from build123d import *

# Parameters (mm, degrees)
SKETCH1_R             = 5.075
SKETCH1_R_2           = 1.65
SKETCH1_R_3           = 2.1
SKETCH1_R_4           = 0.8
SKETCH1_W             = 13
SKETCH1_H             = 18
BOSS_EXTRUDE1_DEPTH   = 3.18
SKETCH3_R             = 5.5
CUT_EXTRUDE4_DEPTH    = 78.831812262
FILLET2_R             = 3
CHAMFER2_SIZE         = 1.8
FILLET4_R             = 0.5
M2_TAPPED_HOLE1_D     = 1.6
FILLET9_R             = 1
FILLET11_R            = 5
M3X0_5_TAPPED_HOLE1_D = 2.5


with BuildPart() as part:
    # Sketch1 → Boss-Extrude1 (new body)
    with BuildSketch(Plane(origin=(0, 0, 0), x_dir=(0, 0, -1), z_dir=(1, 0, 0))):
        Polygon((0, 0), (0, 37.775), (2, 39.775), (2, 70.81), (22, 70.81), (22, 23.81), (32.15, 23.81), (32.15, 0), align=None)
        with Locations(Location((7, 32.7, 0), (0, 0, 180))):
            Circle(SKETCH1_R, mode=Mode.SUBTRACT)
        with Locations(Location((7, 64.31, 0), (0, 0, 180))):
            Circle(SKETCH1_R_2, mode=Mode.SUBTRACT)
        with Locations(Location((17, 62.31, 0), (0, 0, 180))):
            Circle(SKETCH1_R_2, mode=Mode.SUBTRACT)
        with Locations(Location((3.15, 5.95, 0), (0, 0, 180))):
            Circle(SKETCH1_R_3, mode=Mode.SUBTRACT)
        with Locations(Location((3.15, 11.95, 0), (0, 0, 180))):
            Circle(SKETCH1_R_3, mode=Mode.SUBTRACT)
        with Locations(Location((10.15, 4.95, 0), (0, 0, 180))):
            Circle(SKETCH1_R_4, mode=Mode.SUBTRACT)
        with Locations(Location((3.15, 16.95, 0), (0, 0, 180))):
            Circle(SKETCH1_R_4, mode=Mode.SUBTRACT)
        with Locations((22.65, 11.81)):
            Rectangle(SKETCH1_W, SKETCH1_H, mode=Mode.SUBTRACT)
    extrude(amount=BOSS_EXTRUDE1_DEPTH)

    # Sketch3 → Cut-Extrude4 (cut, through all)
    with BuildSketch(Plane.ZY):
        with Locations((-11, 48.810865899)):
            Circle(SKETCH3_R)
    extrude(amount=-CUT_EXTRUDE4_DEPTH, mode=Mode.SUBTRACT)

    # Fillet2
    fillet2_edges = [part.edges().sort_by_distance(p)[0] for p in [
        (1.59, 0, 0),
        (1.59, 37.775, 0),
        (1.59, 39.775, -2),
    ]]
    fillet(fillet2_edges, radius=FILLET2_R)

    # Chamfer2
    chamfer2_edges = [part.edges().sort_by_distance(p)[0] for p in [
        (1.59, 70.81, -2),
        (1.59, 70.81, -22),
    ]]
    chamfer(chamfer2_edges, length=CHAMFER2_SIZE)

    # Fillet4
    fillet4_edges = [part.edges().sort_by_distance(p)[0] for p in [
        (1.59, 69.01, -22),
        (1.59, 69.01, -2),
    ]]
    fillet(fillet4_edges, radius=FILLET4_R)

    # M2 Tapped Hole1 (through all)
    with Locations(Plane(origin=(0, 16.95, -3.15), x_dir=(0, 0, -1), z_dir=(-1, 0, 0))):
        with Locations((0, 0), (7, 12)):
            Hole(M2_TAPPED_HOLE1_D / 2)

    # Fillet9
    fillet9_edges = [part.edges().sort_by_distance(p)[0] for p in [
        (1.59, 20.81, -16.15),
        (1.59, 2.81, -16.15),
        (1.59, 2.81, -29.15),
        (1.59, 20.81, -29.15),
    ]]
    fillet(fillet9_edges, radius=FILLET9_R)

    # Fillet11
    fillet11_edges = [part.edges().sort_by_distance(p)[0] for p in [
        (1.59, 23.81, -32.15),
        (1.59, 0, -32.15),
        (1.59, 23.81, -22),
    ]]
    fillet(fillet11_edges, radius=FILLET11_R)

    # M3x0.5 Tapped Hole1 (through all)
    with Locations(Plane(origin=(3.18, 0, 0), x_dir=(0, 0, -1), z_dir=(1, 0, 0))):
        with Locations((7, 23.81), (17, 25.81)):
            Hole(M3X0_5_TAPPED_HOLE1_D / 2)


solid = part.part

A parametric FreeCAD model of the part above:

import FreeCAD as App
import Part
import Sketcher
Q = App.Units.Quantity


def edges_at(feature, points):
    """Names of the edges that pass closest to the given points."""
    edges = feature.Shape.Edges
    near = lambda p: min(range(len(edges)), key=lambda i: edges[i].distToShape(Part.Vertex(*p))[0])
    return sorted({f"Edge{near(p) + 1}" for p in points})

doc = App.newDocument("Part")
params = doc.addObject("Spreadsheet::Sheet", "Params")
for row, (alias, value) in enumerate([
    ("sketch1_diameter", "1.6 mm"),
    ("sketch1_diameter2", "4.2 mm"),
    ("sketch1_diameter3", "3.3 mm"),
    ("sketch1_diameter4", "10.15 mm"),
    ("sketch1_width", "47 mm"),
    ("pad1_length", "3.18 mm"),
    ("sketch2_diameter", "11 mm"),
    ("fillet_radius", "3 mm"),
    ("chamfer_size", "1.8 mm"),
    ("fillet2_radius", "0.5 mm"),
    ("sketch3_diameter", "1.6 mm"),
    ("hole_diameter", "1.6 mm"),
    ("fillet3_radius", "1 mm"),
    ("fillet4_radius", "5 mm"),
    ("sketch4_diameter", "2.5 mm"),
    ("hole2_diameter", "2.5 mm"),
], start=1):
    params.set(f"A{row}", alias)
    params.set(f"B{row}", "=" + value)
    params.setAlias(f"B{row}", alias)

body = doc.addObject("PartDesign::Body", "Body")

# Sketch on YZ plane
sketch1 = body.newObject("Sketcher::SketchObject", "Sketch")
sketch1.AttachmentSupport = (doc.getObject("YZ_Plane"), [""])
sketch1.MapMode = "FlatFace"
sketch1.addGeometry([
    Part.LineSegment(App.Vector(37.8, 0, 0), App.Vector(0, 0, 0)),  # 0
    Part.LineSegment(App.Vector(0, 0, 0), App.Vector(0, -32.1, 0)),  # 1
    Part.LineSegment(App.Vector(0, -32.1, 0), App.Vector(23.8, -32.1, 0)),  # 2
    Part.LineSegment(App.Vector(23.8, -32.1, 0), App.Vector(23.8, -22, 0)),  # 3
    Part.LineSegment(App.Vector(23.8, -22, 0), App.Vector(70.8, -22, 0)),  # 4
    Part.LineSegment(App.Vector(70.8, -22, 0), App.Vector(70.8, -2, 0)),  # 5
    Part.LineSegment(App.Vector(70.8, -2, 0), App.Vector(39.8, -2, 0)),  # 6
    Part.LineSegment(App.Vector(39.8, -2, 0), App.Vector(37.8, 0, 0)),  # 7
    Part.LineSegment(App.Vector(2.8, -16.1, 0), App.Vector(20.8, -16.1, 0)),  # 8
    Part.LineSegment(App.Vector(20.8, -16.1, 0), App.Vector(20.8, -29.1, 0)),  # 9
    Part.LineSegment(App.Vector(20.8, -29.1, 0), App.Vector(2.8, -29.1, 0)),  # 10
    Part.LineSegment(App.Vector(2.8, -29.1, 0), App.Vector(2.8, -16.1, 0)),  # 11
    Part.Circle(App.Vector(5, -10.2, 0), App.Vector(0, 0, 1), 0.8),  # 12
    Part.Circle(App.Vector(6, -3.1, 0), App.Vector(0, 0, 1), 2.1),  # 13
    Part.Circle(App.Vector(11.9, -3.1, 0), App.Vector(0, 0, 1), 2.1),  # 14
    Part.Circle(App.Vector(16.9, -3.1, 0), App.Vector(0, 0, 1), 0.8),  # 15
    Part.Circle(App.Vector(32.7, -7, 0), App.Vector(0, 0, 1), 5.1),  # 16
    Part.Circle(App.Vector(62.3, -17, 0), App.Vector(0, 0, 1), 1.6),  # 17
    Part.Circle(App.Vector(64.3, -7, 0), App.Vector(0, 0, 1), 1.6),  # 18
], False)
sketch1.addConstraint([
    Sketcher.Constraint("Coincident", 0, 2, 1, 1),
    Sketcher.Constraint("Coincident", 1, 2, 2, 1),
    Sketcher.Constraint("Coincident", 2, 2, 3, 1),
    Sketcher.Constraint("Coincident", 3, 2, 4, 1),
    Sketcher.Constraint("Coincident", 4, 2, 5, 1),
    Sketcher.Constraint("Coincident", 5, 2, 6, 1),
    Sketcher.Constraint("Coincident", 6, 2, 7, 1),
    Sketcher.Constraint("Coincident", 7, 2, 0, 1),
    Sketcher.Constraint("Coincident", 8, 2, 9, 1),
    Sketcher.Constraint("Coincident", 9, 2, 10, 1),
    Sketcher.Constraint("Coincident", 10, 2, 11, 1),
    Sketcher.Constraint("Coincident", 11, 2, 8, 1),
    Sketcher.Constraint("Horizontal", 0),
    Sketcher.Constraint("Vertical", 1),
    Sketcher.Constraint("Horizontal", 2),
    Sketcher.Constraint("Vertical", 3),
    Sketcher.Constraint("Horizontal", 4),
    Sketcher.Constraint("Vertical", 5),
    Sketcher.Constraint("Horizontal", 6),
    Sketcher.Constraint("Horizontal", 8),
    Sketcher.Constraint("Vertical", 9),
    Sketcher.Constraint("Horizontal", 10),
    Sketcher.Constraint("Vertical", 11),
    Sketcher.Constraint("Coincident", 0, 2, -1, 1),
    Sketcher.Constraint("Equal", 13, 14),
    Sketcher.Constraint("Equal", 12, 15),
    Sketcher.Constraint("Equal", 17, 18),
    Sketcher.Constraint("Horizontal", 13, 3, 14, 3),
    Sketcher.Constraint("Horizontal", 14, 3, 15, 3),
    Sketcher.Constraint("Horizontal", 16, 3, 18, 3),
    Sketcher.Constraint("Diameter", 12, 1.6),
    Sketcher.Constraint("Diameter", 13, 4.2),
    Sketcher.Constraint("Diameter", 17, 3.3),
    Sketcher.Constraint("Diameter", 16, 10.15),
    Sketcher.Constraint("DistanceX", 4, 1, 4, 2, 47.0),
    Sketcher.Constraint("DistanceX", 8, 1, 8, 2, 18.0),
    Sketcher.Constraint("DistanceY", 5, 1, 5, 2, 20.0),
    Sketcher.Constraint("DistanceY", 9, 2, 9, 1, 13.0),
    Sketcher.Constraint("Angle", 7, Q("135 deg")),
    Sketcher.Constraint("DistanceY", 16, 3, -1, 1, 7.0),
    Sketcher.Constraint("DistanceY", 17, 3, -1, 1, 17.0),
    Sketcher.Constraint("DistanceY", 3, 2, -1, 1, 22.0),
    Sketcher.Constraint("DistanceX", 12, 3, 13, 3, 1.0),
    Sketcher.Constraint("DistanceY", 12, 3, 13, 3, 7.0),
    Sketcher.Constraint("DistanceX", 13, 3, 14, 3, 6.0),
    Sketcher.Constraint("DistanceX", 14, 3, 15, 3, 5.0),
    Sketcher.Constraint("DistanceX", 17, 3, 18, 3, 2.0),
    Sketcher.Constraint("DistanceY", 1, 2, 12, 3, 22.0),
    Sketcher.Constraint("DistanceX", 8, 2, 3, 2, 3.0),
    Sketcher.Constraint("DistanceY", 8, 2, 15, 3, 13.0),
    Sketcher.Constraint("DistanceX", 2, 1, 2, 2, 23.81),
    Sketcher.Constraint("DistanceY", 1, 2, 1, 1, 32.15),
    Sketcher.Constraint("DistanceX", -1, 1, 16, 3, 32.7),
    Sketcher.Constraint("DistanceX", 17, 3, 4, 2, 8.5),
    Sketcher.Constraint("DistanceX", 0, 2, 0, 1, 37.775),
    Sketcher.Constraint("DistanceX", -1, 1, 12, 3, 4.95),
])
sketch1.setExpression("Constraints[30]", "Params.sketch1_diameter")
sketch1.setExpression("Constraints[31]", "Params.sketch1_diameter2")
sketch1.setExpression("Constraints[32]", "Params.sketch1_diameter3")
sketch1.setExpression("Constraints[33]", "Params.sketch1_diameter4")
sketch1.setExpression("Constraints[34]", "Params.sketch1_width")
pad1 = body.newObject("PartDesign::Pad", "Pad")
pad1.Profile = sketch1
pad1.setExpression("Length", "Params.pad1_length")

# Sketch on YZ plane
sketch2 = body.newObject("Sketcher::SketchObject", "Sketch001")
sketch2.AttachmentSupport = (doc.getObject("YZ_Plane"), [""])
sketch2.MapMode = "FlatFace"
sketch2.addGeometry(Part.Circle(App.Vector(49, -11, 0), App.Vector(0, 0, 1), 6), False)
sketch2.addConstraint([
    Sketcher.Constraint("Diameter", 0, 11.0),
    Sketcher.Constraint("DistanceY", 0, 3, -1, 1, 11.0),
    Sketcher.Constraint("DistanceX", -1, 1, 0, 3, 48.810866),
])
sketch2.setExpression("Constraints[0]", "Params.sketch2_diameter")
pocket1 = body.newObject("PartDesign::Pocket", "Pocket")
pocket1.Profile = sketch2
pocket1.Type = "ThroughAll"
pocket1.Reversed = True
doc.recompute()

fillet = body.newObject("PartDesign::Fillet", "Fillet")
fillet.Base = (pocket1, edges_at(pocket1, [(1.59, 0, 0), (1.59, 37.775, 0), (1.59, 39.775, -2)]))
fillet.setExpression("Radius", "Params.fillet_radius")
doc.recompute()

chamfer = body.newObject("PartDesign::Chamfer", "Chamfer")
chamfer.Base = (fillet, edges_at(fillet, [(1.59, 70.81, -2), (1.59, 70.81, -22)]))
chamfer.setExpression("Size", "Params.chamfer_size")
doc.recompute()

fillet2 = body.newObject("PartDesign::Fillet", "Fillet001")
fillet2.Base = (chamfer, edges_at(chamfer, [(1.59, 69.01, -22), (1.59, 69.01, -2)]))
fillet2.setExpression("Radius", "Params.fillet2_radius")

# Sketch on YZ plane
sketch3 = body.newObject("Sketcher::SketchObject", "Sketch002")
sketch3.AttachmentSupport = (doc.getObject("YZ_Plane"), [""])
sketch3.MapMode = "FlatFace"
sketch3.addGeometry([
    Part.Circle(App.Vector(16.9, -3.1, 0), App.Vector(0, 0, 1), 0.8),
    Part.Circle(App.Vector(5, -10.2, 0), App.Vector(0, 0, 1), 0.8),
], False)
sketch3.addConstraint([
    Sketcher.Constraint("Equal", 0, 1),
    Sketcher.Constraint("Diameter", 0, 1.6),
    Sketcher.Constraint("DistanceX", 1, 3, 0, 3, 12.0),
    Sketcher.Constraint("DistanceY", 1, 3, 0, 3, 7.0),
    Sketcher.Constraint("DistanceX", -1, 1, 0, 3, 16.95),
    Sketcher.Constraint("DistanceY", 0, 3, -1, 1, 3.15),
])
sketch3.setExpression("Constraints[1]", "Params.sketch3_diameter")
doc.recompute()
hole = body.newObject("PartDesign::Hole", "Hole")
hole.Profile = sketch3
hole.ThreadType = "None"
hole.setExpression("Diameter", "Params.hole_diameter")
hole.DepthType = "ThroughAll"
hole.Reversed = True
doc.recompute()

fillet3 = body.newObject("PartDesign::Fillet", "Fillet002")
fillet3.Base = (hole, edges_at(hole, [
    (1.59, 20.81, -16.15),
    (1.59, 2.81, -16.15),
    (1.59, 2.81, -29.15),
    (1.59, 20.81, -29.15),
]))
fillet3.setExpression("Radius", "Params.fillet3_radius")
doc.recompute()

fillet4 = body.newObject("PartDesign::Fillet", "Fillet003")
fillet4.Base = (fillet3, edges_at(fillet3, [(1.59, 23.81, -32.15), (1.59, 0, -32.15), (1.59, 23.81, -22)]))
fillet4.setExpression("Radius", "Params.fillet4_radius")

# Sketch on YZ plane
sketch4 = body.newObject("Sketcher::SketchObject", "Sketch003")
sketch4.AttachmentSupport = (doc.getObject("YZ_Plane"), [""])
sketch4.MapMode = "FlatFace"
sketch4.AttachmentOffset = App.Placement(App.Vector(0, 0, 3.18), App.Rotation())
sketch4.addGeometry([
    Part.Circle(App.Vector(23.8, -7, 0), App.Vector(0, 0, 1), 1.2),
    Part.Circle(App.Vector(25.8, -17, 0), App.Vector(0, 0, 1), 1.2),
], False)
sketch4.addConstraint([
    Sketcher.Constraint("Equal", 0, 1),
    Sketcher.Constraint("Diameter", 0, 2.5),
    Sketcher.Constraint("DistanceY", 0, 3, -1, 1, 7.0),
    Sketcher.Constraint("DistanceY", 1, 3, -1, 1, 17.0),
    Sketcher.Constraint("DistanceX", 0, 3, 1, 3, 2.0),
    Sketcher.Constraint("DistanceX", -1, 1, 0, 3, 23.81),
])
sketch4.setExpression("Constraints[1]", "Params.sketch4_diameter")
doc.recompute()
hole2 = body.newObject("PartDesign::Hole", "Hole001")
hole2.Profile = sketch4
hole2.ThreadType = "None"
hole2.setExpression("Diameter", "Params.hole2_diameter")
hole2.DepthType = "ThroughAll"

doc.recompute()
